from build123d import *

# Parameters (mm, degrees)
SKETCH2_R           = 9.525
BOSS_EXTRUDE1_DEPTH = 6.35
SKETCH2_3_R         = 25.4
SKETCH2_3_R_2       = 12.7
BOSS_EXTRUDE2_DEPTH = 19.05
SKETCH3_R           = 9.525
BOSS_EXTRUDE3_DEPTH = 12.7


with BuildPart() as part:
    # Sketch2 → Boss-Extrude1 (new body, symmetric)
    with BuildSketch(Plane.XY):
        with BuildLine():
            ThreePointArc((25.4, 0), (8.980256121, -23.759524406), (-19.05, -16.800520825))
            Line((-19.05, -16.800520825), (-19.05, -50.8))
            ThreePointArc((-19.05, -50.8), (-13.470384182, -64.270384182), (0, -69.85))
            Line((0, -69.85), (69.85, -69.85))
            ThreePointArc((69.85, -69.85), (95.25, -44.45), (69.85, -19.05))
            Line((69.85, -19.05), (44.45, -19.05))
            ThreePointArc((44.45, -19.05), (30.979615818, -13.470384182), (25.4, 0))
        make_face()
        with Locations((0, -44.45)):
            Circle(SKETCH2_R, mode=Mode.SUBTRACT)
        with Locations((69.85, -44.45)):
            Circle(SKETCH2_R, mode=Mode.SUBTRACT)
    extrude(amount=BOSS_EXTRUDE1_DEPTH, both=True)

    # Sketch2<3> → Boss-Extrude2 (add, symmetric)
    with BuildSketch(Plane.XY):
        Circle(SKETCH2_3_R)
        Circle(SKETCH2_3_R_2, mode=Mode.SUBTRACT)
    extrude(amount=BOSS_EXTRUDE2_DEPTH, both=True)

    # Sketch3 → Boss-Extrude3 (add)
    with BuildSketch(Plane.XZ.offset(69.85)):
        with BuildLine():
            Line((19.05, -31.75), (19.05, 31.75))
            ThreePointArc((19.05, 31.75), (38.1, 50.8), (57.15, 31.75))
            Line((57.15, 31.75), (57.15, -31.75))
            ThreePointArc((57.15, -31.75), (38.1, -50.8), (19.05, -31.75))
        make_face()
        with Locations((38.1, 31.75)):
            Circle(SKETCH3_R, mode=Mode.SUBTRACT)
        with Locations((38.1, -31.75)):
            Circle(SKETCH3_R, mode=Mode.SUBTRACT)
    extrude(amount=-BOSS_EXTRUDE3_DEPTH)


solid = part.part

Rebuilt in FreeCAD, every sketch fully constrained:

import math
import FreeCAD as App
import Part
import Sketcher
Q = App.Units.Quantity

doc = App.newDocument("Part")
body = doc.addObject("PartDesign::Body", "Body")

sketch1 = body.newObject("Sketcher::SketchObject", "Sketch")
sketch1.AttachmentSupport = (doc.getObject("XY_Plane"), [""])
sketch1.MapMode = "FlatFace"
sketch1.addGeometry(Part.ArcOfCircle(Part.Circle(App.Vector(0, 0, 0), App.Vector(0, 0, 1), 25.4), math.radians(-138.590378), math.radians(0)), False)
sketch1.addGeometry(Part.LineSegment(App.Vector(-19.05, -16.800521, 0), App.Vector(-19.05, -50.8, 0)), False)
sketch1.addGeometry(Part.ArcOfCircle(Part.Circle(App.Vector(0, -50.8, 0), App.Vector(0, 0, 1), 19.05), math.radians(180), math.radians(270)), False)
sketch1.addGeometry(Part.LineSegment(App.Vector(0, -69.85, 0), App.Vector(69.85, -69.85, 0)), False)
sketch1.addGeometry(Part.ArcOfCircle(Part.Circle(App.Vector(69.85, -44.45, 0), App.Vector(0, 0, 1), 25.4), math.radians(-90), math.radians(90)), False)
sketch1.addGeometry(Part.LineSegment(App.Vector(69.85, -19.05, 0), App.Vector(44.45, -19.05, 0)), False)
sketch1.addGeometry(Part.ArcOfCircle(Part.Circle(App.Vector(44.45, 0, 0), App.Vector(0, 0, 1), 19.05), math.radians(180), math.radians(270)), False)
sketch1.addGeometry(Part.Circle(App.Vector(0, -44.45, 0), App.Vector(0, 0, 1), 9.525), False)
sketch1.addGeometry(Part.Circle(App.Vector(69.85, -44.45, 0), App.Vector(0, 0, 1), 9.525), False)
sketch1.addConstraint(Sketcher.Constraint("Coincident", 0, 1, 1, 1))
sketch1.addConstraint(Sketcher.Constraint("Tangent", 1, 2, 2, 1))
sketch1.addConstraint(Sketcher.Constraint("Tangent", 2, 2, 3, 1))
sketch1.addConstraint(Sketcher.Constraint("Tangent", 3, 2, 4, 1))
sketch1.addConstraint(Sketcher.Constraint("Tangent", 4, 2, 5, 1))
sketch1.addConstraint(Sketcher.Constraint("Tangent", 5, 2, 6, 2))
sketch1.addConstraint(Sketcher.Constraint("Tangent", 6, 1, 0, 2))
sketch1.addConstraint(Sketcher.Constraint("Vertical", 1))
sketch1.addConstraint(Sketcher.Constraint("Horizontal", 3))
sketch1.addConstraint(Sketcher.Constraint("Horizontal", 5))
sketch1.addConstraint(Sketcher.Constraint("Coincident", 0, 3, -1, 1))
sketch1.addConstraint(Sketcher.Constraint("Coincident", 8, 3, 4, 3))
sketch1.addConstraint(Sketcher.Constraint("Equal", 0, 4))
sketch1.addConstraint(Sketcher.Constraint("Equal", 2, 6))
sketch1.addConstraint(Sketcher.Constraint("Equal", 7, 8))
sketch1.addConstraint(Sketcher.Constraint("PointOnObject", 2, 3, -2))
sketch1.addConstraint(Sketcher.Constraint("PointOnObject", 6, 3, -1))
sketch1.addConstraint(Sketcher.Constraint("PointOnObject", 7, 3, -2))
sketch1.addConstraint(Sketcher.Constraint("Horizontal", 4, 3, 7, 3))
sketch1.addConstraint(Sketcher.Constraint("Radius", 0, Q("1 in")))
sketch1.addConstraint(Sketcher.Constraint("Diameter", 7, Q("0.75 in")))
sketch1.addConstraint(Sketcher.Constraint("DistanceX", 5, 2, 5, 1, Q("1 in")))
sketch1.addConstraint(Sketcher.Constraint("Radius", 2, Q("0.75 in")))
pad1 = body.newObject("PartDesign::Pad", "Pad")
pad1.Profile = sketch1
pad1.Length = Q("0.5 in")
pad1.Midplane = True

sketch2 = body.newObject("Sketcher::SketchObject", "Sketch001")
sketch2.AttachmentSupport = (doc.getObject("XY_Plane"), [""])
sketch2.MapMode = "FlatFace"
sketch2.addGeometry(Part.Circle(App.Vector(0, 0, 0), App.Vector(0, 0, 1), 25.4), False)
sketch2.addGeometry(Part.Circle(App.Vector(0, 0, 0), App.Vector(0, 0, 1), 12.7), False)
sketch2.addConstraint(Sketcher.Constraint("Coincident", 0, 3, -1, 1))
sketch2.addConstraint(Sketcher.Constraint("Coincident", 1, 3, -1, 1))
sketch2.addConstraint(Sketcher.Constraint("Diameter", 0, Q("2 in")))
sketch2.addConstraint(Sketcher.Constraint("Diameter", 1, Q("1 in")))
pad2 = body.newObject("PartDesign::Pad", "Pad001")
pad2.Profile = sketch2
pad2.Length = Q("1.5 in")
pad2.Midplane = True

sketch3 = body.newObject("Sketcher::SketchObject", "Sketch002")
sketch3.AttachmentSupport = (doc.getObject("XZ_Plane"), [""])
sketch3.MapMode = "FlatFace"
sketch3.AttachmentOffset = App.Placement(App.Vector(0, 0, 2.75 * 25.4), App.Rotation())
sketch3.addGeometry(Part.LineSegment(App.Vector(19.05, 31.75, 0), App.Vector(19.05, -31.75, 0)), False)
sketch3.addGeometry(Part.ArcOfCircle(Part.Circle(App.Vector(38.1, -31.75, 0), App.Vector(0, 0, 1), 19.05), math.radians(180), math.radians(360)), False)
sketch3.addGeometry(Part.LineSegment(App.Vector(57.15, -31.75, 0), App.Vector(57.15, 31.75, 0)), False)
sketch3.addGeometry(Part.ArcOfCircle(Part.Circle(App.Vector(38.1, 31.75, 0), App.Vector(0, 0, 1), 19.05), math.radians(0), math.radians(180)), False)
sketch3.addGeometry(Part.Circle(App.Vector(38.1, -31.75, 0), App.Vector(0, 0, 1), 9.525), False)
sketch3.addGeometry(Part.Circle(App.Vector(38.1, 31.75, 0), App.Vector(0, 0, 1), 9.525), False)
sketch3.addConstraint(Sketcher.Constraint("Tangent", 0, 2, 1, 1))
sketch3.addConstraint(Sketcher.Constraint("Tangent", 1, 2, 2, 1))
sketch3.addConstraint(Sketcher.Constraint("Tangent", 2, 2, 3, 1))
sketch3.addConstraint(Sketcher.Constraint("Tangent", 3, 2, 0, 1))
sketch3.addConstraint(Sketcher.Constraint("Vertical", 0))
sketch3.addConstraint(Sketcher.Constraint("Vertical", 2))
sketch3.addConstraint(Sketcher.Constraint("Coincident", 4, 3, 1, 3))
sketch3.addConstraint(Sketcher.Constraint("Coincident", 5, 3, 3, 3))
sketch3.addConstraint(Sketcher.Constraint("Equal", 4, 5))
sketch3.addConstraint(Sketcher.Constraint("Diameter", 4, Q("0.75 in")))
sketch3.addConstraint(Sketcher.Constraint("Radius", 1, Q("0.75 in")))
sketch3.addConstraint(Sketcher.Constraint("DistanceY", 0, 2, 0, 1, Q("2.5 in")))
sketch3.addConstraint(Sketcher.Constraint("DistanceX", -1, 1, 1, 3, Q("1.5 in")))
sketch3.addConstraint(Sketcher.Constraint("DistanceY", 1, 3, -1, 1, Q("1.25 in")))
pad3 = body.newObject("PartDesign::Pad", "Pad002")
pad3.Profile = sketch3
pad3.Length = Q("0.5 in")
pad3.Reversed = True

doc.recompute()
